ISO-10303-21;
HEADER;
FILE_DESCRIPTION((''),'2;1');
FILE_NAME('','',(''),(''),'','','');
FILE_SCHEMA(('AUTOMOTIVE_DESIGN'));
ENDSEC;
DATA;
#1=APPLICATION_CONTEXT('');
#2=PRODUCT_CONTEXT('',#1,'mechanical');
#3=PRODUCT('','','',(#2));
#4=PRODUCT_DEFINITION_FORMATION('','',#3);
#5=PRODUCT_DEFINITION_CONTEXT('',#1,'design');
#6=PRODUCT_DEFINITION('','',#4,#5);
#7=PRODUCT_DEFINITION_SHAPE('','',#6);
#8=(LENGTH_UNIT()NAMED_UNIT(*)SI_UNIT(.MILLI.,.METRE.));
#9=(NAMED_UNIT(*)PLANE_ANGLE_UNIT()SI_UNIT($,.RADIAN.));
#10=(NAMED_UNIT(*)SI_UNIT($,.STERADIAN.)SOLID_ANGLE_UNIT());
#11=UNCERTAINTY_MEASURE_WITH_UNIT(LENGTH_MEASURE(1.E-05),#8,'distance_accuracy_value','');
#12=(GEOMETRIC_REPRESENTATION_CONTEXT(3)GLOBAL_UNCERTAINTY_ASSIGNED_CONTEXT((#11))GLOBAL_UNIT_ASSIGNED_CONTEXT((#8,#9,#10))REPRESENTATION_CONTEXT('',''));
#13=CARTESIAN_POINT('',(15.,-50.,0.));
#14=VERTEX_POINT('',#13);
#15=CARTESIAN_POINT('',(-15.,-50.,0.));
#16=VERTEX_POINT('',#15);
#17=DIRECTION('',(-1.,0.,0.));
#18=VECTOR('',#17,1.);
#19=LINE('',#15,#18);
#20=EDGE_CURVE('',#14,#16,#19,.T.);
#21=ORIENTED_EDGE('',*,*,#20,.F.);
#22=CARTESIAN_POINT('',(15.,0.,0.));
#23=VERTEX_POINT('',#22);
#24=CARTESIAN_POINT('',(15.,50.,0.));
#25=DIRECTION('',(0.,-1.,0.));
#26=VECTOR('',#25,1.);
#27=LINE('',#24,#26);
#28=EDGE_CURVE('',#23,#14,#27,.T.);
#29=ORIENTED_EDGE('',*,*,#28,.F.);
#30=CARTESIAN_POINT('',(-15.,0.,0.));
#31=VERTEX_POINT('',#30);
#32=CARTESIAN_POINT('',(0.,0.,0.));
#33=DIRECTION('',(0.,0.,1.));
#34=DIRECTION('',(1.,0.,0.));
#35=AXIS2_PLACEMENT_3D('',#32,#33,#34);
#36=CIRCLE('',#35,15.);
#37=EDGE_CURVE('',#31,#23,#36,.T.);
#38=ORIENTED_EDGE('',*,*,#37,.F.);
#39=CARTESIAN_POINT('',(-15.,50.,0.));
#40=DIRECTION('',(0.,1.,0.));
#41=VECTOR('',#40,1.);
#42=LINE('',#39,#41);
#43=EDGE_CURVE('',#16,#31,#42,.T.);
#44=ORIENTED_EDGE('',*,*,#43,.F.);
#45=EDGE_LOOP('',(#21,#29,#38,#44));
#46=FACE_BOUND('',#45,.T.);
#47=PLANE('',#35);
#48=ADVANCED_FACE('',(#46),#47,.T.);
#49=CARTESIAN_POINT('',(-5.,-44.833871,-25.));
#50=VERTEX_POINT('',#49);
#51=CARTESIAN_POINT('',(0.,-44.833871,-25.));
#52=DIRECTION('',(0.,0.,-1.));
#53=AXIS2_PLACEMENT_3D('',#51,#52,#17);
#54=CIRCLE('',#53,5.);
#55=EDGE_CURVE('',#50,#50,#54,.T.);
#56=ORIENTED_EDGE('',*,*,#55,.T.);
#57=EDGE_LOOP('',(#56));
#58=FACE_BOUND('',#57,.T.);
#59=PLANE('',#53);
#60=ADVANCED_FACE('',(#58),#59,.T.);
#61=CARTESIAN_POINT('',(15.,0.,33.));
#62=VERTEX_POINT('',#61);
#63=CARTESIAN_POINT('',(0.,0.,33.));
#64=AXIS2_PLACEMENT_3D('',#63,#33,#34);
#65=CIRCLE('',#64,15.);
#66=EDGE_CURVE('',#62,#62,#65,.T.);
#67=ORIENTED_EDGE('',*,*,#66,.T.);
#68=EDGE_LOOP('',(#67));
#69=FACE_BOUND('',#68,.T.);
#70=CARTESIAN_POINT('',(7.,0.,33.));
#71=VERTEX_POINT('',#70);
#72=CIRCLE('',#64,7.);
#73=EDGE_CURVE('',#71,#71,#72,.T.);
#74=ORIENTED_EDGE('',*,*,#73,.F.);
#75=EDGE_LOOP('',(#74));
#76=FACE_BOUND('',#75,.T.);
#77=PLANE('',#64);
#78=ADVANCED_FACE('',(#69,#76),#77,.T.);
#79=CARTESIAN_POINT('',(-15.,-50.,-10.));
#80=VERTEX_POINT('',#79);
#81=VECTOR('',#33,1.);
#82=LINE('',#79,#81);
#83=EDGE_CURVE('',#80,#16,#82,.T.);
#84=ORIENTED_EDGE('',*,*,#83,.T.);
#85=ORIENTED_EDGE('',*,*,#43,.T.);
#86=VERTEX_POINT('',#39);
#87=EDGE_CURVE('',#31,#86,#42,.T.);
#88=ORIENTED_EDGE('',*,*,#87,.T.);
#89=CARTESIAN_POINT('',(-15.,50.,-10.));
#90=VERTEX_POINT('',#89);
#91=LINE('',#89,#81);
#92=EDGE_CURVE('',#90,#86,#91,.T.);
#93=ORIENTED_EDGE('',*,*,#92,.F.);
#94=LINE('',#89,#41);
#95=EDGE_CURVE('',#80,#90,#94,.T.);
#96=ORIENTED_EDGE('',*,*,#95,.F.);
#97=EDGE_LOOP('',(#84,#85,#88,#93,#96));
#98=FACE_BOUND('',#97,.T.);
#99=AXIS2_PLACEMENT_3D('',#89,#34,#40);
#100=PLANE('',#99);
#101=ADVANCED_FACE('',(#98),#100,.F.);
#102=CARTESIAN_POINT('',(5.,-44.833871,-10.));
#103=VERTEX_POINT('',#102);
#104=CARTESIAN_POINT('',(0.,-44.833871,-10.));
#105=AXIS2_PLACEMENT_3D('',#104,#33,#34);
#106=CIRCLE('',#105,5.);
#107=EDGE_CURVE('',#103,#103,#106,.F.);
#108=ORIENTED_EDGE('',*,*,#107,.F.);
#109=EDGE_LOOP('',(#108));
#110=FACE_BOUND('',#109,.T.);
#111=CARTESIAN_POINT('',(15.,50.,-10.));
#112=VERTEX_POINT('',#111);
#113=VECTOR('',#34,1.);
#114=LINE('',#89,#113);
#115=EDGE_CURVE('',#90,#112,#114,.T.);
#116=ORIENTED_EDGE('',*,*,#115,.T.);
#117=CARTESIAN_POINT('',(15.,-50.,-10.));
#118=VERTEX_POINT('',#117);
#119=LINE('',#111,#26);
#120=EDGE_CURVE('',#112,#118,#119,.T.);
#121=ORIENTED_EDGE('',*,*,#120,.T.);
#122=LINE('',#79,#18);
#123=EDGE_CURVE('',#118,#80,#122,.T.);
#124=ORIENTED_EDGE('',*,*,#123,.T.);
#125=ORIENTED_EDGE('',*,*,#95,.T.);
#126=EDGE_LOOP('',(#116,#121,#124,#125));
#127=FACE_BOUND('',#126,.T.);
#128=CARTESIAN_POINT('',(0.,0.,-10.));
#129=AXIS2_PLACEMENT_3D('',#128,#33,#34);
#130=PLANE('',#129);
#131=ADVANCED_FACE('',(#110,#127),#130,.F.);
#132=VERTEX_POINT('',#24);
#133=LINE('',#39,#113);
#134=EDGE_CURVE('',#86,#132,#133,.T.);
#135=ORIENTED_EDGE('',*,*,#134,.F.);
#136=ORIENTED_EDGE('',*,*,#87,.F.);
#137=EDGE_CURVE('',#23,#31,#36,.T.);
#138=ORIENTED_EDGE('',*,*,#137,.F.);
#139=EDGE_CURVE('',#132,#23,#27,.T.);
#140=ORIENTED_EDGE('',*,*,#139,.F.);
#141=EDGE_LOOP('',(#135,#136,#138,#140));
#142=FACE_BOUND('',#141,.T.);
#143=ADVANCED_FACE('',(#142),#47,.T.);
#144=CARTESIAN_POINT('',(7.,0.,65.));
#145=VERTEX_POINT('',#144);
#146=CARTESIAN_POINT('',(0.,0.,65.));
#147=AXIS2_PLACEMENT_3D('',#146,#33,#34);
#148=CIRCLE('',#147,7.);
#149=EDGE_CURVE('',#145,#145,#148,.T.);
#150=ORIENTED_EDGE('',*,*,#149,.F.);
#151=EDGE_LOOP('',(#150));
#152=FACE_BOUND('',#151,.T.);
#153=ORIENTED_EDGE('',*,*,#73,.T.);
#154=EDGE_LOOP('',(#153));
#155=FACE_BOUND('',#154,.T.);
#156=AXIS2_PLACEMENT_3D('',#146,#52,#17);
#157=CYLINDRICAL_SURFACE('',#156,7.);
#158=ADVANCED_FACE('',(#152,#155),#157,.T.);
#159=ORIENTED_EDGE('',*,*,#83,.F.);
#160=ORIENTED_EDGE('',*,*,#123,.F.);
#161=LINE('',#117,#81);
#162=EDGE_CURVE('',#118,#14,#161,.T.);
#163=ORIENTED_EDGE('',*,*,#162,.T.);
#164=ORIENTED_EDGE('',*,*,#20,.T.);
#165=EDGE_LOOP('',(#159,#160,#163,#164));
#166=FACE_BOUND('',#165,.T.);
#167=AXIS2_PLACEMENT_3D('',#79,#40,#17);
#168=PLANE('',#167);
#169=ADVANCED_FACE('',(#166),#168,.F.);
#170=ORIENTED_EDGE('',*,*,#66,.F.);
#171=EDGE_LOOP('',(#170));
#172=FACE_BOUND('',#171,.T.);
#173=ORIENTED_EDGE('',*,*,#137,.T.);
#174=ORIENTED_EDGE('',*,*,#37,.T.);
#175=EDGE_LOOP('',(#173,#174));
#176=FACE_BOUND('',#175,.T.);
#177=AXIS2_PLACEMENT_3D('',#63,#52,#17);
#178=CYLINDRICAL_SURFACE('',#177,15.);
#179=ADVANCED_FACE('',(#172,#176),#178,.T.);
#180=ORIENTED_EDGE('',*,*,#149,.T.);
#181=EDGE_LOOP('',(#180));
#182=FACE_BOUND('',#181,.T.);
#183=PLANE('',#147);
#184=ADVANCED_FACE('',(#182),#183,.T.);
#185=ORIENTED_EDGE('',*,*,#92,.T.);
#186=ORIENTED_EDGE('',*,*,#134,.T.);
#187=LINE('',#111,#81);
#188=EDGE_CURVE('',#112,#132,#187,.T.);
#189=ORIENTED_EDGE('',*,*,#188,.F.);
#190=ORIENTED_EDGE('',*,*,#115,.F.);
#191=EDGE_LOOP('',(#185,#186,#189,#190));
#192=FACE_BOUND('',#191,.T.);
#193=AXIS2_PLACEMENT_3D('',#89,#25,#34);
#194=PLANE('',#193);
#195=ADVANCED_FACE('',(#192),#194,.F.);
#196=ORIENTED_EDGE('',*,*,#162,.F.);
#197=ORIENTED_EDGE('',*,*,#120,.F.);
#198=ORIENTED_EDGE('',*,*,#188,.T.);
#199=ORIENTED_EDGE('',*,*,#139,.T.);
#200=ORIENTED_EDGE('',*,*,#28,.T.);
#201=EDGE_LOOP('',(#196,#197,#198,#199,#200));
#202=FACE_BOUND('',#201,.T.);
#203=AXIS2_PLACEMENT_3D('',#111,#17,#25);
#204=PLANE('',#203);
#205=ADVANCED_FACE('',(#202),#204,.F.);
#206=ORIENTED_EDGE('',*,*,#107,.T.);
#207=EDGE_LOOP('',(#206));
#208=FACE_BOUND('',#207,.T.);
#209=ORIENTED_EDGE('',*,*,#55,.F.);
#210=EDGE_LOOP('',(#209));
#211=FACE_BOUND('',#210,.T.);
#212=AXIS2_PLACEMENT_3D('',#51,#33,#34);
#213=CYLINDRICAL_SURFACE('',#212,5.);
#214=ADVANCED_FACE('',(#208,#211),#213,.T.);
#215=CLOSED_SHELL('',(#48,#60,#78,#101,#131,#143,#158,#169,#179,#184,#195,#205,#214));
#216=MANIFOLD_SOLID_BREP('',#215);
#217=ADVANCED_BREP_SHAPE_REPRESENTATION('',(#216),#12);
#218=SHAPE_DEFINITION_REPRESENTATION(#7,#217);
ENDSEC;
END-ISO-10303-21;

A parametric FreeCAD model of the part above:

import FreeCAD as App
import Part
import Sketcher
Q = App.Units.Quantity

doc = App.newDocument("Part")
body = doc.addObject("PartDesign::Body", "Body")

# Sketch on XY plane
sketch1 = doc.addObject("Sketcher::SketchObject", "Sketch")
body.addObject(sketch1)
sketch1.AttachmentSupport = (doc.XY_Plane, [""])
sketch1.MapMode = "FlatFace"
sketch1.addGeometry(Part.Circle(App.Vector(0, 0, 0), App.Vector(0, 0, 1), 7), False)
sketch1.addConstraint([
    Sketcher.Constraint("Coincident", 0, 3, -1, 1),
    Sketcher.Constraint("Diameter", 0, Q("14 mm")),
])
pad1 = doc.addObject("PartDesign::Pad", "Pad")
body.addObject(pad1)
pad1.Profile = sketch1
pad1.Length = 65

# Sketch on XY plane
sketch2 = doc.addObject("Sketcher::SketchObject", "Sketch001")
body.addObject(sketch2)
sketch2.AttachmentSupport = (doc.XY_Plane, [""])
sketch2.MapMode = "FlatFace"
sketch2.addGeometry([
    Part.Circle(App.Vector(0, 0, 0), App.Vector(0, 0, 1), 15),
    Part.Circle(App.Vector(0, 0, 0), App.Vector(0, 0, 1), 7),
], False)
sketch2.addConstraint([
    Sketcher.Constraint("Coincident", 0, 3, -1, 1),
    Sketcher.Constraint("Coincident", 1, 3, -1, 1),
    Sketcher.Constraint("Diameter", 0, Q("30 mm")),
    Sketcher.Constraint("Diameter", 1, Q("14 mm")),
])
pad2 = doc.addObject("PartDesign::Pad", "Pad001")
body.addObject(pad2)
pad2.Profile = sketch2
pad2.Length = 33

# Sketch on XY plane
sketch3 = doc.addObject("Sketcher::SketchObject", "Sketch002")
body.addObject(sketch3)
sketch3.AttachmentSupport = (doc.XY_Plane, [""])
sketch3.MapMode = "FlatFace"
sketch3.addGeometry([
    Part.LineSegment(App.Vector(15, 50, 0), App.Vector(15, -50, 0)),
    Part.LineSegment(App.Vector(15, -50, 0), App.Vector(-15, -50, 0)),
    Part.LineSegment(App.Vector(-15, -50, 0), App.Vector(-15, 50, 0)),
    Part.LineSegment(App.Vector(-15, 50, 0), App.Vector(15, 50, 0)),
], False)
sketch3.addConstraint([
    Sketcher.Constraint("Coincident", 0, 2, 1, 1),
    Sketcher.Constraint("Coincident", 1, 2, 2, 1),
    Sketcher.Constraint("Coincident", 2, 2, 3, 1),
    Sketcher.Constraint("Coincident", 3, 2, 0, 1),
    Sketcher.Constraint("Vertical", 0),
    Sketcher.Constraint("Horizontal", 1),
    Sketcher.Constraint("Vertical", 2),
    Sketcher.Constraint("Horizontal", 3),
    Sketcher.Constraint("Symmetric", 0, 2, 2, 2, -1, 1),
    Sketcher.Constraint("DistanceX", 1, 2, 1, 1, Q("30 mm")),
    Sketcher.Constraint("DistanceY", 0, 2, 0, 1, Q("100 mm")),
])
pad3 = doc.addObject("PartDesign::Pad", "Pad002")
body.addObject(pad3)
pad3.Profile = sketch3
pad3.Length = 10
pad3.Reversed = True

# Sketch on XY plane
sketch4 = doc.addObject("Sketcher::SketchObject", "Sketch003")
body.addObject(sketch4)
sketch4.AttachmentSupport = (doc.XY_Plane, [""])
sketch4.MapMode = "FlatFace"
sketch4.AttachmentOffset = App.Placement(App.Vector(0, 0, -10), App.Rotation())
sketch4.addGeometry(Part.Circle(App.Vector(0, -45, 0), App.Vector(0, 0, 1), 5), False)
sketch4.addConstraint([
    Sketcher.Constraint("PointOnObject", 0, 3, -2),
    Sketcher.Constraint("Diameter", 0, Q("10 mm")),
    Sketcher.Constraint("DistanceY", 0, 3, -1, 1, Q("44.833871 mm")),
])
pad4 = doc.addObject("PartDesign::Pad", "Pad003")
body.addObject(pad4)
pad4.Profile = sketch4
pad4.Length = 15
pad4.Reversed = True

doc.recompute()
